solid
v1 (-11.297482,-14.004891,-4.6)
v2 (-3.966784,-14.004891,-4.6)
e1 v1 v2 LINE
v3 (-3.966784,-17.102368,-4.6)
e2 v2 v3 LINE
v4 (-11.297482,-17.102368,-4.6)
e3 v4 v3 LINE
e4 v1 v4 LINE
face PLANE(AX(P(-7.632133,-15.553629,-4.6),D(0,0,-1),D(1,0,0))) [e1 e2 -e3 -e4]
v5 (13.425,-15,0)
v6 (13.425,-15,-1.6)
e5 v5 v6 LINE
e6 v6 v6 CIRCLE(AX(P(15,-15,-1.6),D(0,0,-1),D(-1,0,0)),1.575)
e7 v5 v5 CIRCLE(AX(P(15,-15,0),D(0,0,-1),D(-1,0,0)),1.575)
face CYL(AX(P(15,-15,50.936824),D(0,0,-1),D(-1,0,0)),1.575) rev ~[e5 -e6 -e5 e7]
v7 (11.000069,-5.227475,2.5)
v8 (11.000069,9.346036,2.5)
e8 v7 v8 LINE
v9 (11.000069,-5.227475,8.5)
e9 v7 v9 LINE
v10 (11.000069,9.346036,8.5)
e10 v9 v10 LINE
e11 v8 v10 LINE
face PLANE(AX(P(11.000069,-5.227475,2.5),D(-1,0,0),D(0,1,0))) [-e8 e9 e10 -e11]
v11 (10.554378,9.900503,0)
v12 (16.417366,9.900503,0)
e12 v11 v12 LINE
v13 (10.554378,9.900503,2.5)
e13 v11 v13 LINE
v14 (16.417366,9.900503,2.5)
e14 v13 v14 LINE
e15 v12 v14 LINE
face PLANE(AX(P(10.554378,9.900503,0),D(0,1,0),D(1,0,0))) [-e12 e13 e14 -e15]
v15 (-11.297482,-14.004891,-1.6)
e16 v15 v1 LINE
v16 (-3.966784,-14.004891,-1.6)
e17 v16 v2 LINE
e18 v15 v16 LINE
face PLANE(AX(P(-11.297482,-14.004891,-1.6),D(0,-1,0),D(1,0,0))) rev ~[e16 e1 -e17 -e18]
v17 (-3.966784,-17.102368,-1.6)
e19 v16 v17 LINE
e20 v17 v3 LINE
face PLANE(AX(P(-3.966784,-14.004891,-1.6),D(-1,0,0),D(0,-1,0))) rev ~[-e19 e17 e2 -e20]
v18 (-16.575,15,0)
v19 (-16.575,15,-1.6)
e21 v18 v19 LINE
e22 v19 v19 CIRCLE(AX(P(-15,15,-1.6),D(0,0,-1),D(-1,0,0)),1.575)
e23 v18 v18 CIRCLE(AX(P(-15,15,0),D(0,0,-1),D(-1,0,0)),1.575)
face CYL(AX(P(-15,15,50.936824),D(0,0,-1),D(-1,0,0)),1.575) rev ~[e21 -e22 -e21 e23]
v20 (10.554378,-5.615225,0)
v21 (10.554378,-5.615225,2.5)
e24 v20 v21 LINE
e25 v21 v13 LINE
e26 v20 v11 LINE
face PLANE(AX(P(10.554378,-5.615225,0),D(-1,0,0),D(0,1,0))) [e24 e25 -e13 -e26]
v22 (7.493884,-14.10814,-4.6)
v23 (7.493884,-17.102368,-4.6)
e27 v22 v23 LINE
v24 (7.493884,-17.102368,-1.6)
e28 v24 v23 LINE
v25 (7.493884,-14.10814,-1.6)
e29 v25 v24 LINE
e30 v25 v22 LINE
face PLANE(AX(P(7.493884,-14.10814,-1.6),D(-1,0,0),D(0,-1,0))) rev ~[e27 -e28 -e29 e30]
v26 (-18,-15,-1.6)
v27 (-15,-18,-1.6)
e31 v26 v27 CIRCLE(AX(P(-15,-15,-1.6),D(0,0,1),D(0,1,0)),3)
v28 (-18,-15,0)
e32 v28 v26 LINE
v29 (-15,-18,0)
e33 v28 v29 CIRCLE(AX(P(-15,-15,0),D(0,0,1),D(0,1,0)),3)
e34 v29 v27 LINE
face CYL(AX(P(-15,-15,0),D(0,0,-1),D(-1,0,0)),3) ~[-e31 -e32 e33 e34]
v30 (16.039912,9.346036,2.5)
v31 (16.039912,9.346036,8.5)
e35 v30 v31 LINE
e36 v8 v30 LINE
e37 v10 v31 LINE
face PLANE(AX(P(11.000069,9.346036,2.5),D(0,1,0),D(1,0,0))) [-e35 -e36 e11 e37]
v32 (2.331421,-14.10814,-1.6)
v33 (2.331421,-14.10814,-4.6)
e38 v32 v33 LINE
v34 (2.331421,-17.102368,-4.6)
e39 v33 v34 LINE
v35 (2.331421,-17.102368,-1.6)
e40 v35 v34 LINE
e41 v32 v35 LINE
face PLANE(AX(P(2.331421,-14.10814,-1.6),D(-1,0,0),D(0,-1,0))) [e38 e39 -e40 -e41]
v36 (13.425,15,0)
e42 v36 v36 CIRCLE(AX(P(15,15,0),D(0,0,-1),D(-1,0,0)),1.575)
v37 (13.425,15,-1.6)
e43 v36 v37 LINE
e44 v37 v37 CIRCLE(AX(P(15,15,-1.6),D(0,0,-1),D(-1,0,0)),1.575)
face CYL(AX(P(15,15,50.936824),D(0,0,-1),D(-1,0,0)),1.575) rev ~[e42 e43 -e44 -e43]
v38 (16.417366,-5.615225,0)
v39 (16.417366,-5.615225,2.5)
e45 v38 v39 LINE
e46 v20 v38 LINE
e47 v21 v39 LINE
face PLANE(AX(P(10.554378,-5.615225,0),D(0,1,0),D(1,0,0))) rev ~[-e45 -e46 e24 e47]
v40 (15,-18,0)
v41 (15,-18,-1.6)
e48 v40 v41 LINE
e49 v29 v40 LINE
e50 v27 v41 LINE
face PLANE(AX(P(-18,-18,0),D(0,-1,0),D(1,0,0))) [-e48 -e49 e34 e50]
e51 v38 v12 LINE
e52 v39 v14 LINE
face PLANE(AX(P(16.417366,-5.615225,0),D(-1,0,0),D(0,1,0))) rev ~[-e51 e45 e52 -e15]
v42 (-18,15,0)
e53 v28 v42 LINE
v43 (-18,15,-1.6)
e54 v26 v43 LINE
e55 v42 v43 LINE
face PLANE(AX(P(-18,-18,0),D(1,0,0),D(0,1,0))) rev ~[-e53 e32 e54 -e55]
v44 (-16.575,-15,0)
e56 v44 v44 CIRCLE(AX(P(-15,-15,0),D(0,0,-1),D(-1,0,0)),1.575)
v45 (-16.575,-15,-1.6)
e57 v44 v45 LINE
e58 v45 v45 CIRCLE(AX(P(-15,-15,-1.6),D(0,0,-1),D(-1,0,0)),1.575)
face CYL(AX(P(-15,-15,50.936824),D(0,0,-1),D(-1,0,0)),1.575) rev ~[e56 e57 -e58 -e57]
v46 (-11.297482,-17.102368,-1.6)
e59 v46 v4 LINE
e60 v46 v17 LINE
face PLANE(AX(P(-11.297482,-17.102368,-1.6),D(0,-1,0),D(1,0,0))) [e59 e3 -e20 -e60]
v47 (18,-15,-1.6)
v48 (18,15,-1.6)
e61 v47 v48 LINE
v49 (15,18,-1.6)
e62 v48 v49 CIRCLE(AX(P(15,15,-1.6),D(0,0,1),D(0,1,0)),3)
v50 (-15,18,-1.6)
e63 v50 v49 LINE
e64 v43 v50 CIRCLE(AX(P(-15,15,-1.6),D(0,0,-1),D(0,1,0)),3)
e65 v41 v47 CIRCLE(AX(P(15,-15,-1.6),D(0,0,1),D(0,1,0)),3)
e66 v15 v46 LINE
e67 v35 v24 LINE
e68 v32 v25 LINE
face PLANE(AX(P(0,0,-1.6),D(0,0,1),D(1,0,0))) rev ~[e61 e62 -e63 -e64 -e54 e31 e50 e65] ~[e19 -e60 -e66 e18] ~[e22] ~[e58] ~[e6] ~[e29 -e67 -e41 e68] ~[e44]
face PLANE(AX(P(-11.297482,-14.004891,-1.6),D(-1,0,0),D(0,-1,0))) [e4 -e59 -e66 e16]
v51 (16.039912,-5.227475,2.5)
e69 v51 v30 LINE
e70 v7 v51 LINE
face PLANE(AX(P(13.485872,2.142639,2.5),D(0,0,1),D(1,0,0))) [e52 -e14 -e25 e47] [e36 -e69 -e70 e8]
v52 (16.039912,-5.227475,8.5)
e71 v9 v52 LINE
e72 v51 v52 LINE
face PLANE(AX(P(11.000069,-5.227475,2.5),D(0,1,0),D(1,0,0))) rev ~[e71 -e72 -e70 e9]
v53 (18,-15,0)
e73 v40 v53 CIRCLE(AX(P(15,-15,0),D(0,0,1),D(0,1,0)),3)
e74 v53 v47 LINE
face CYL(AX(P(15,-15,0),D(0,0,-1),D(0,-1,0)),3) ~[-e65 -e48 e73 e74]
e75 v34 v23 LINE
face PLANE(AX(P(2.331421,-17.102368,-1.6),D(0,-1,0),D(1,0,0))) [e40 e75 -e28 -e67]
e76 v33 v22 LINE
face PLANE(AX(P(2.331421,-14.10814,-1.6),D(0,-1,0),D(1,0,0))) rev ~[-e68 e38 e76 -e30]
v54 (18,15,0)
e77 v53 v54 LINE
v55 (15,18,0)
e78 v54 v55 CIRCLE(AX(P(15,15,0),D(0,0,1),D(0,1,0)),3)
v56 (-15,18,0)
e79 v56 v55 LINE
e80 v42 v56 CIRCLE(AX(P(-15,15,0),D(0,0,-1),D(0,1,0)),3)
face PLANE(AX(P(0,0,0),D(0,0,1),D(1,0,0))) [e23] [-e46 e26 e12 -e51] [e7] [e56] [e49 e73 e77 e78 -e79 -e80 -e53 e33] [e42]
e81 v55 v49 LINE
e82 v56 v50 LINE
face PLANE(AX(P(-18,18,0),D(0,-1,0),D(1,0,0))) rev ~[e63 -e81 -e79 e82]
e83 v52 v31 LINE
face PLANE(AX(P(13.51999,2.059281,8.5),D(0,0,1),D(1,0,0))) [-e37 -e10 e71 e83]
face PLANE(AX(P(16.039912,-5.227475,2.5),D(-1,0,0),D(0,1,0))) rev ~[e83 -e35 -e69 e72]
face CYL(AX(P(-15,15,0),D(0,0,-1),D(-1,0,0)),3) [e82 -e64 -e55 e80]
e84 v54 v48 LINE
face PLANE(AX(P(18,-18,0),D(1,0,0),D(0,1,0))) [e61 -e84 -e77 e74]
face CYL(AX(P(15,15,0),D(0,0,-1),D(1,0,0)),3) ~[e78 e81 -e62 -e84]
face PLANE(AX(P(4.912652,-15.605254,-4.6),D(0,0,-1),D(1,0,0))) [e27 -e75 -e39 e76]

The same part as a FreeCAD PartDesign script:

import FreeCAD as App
import Part
import Sketcher

V = App.Vector
Q = App.Units.Quantity


def edges_at(feature, points):
    """Names of the edges that pass closest to the given points."""
    edges = feature.Shape.Edges
    near = lambda p: min(range(len(edges)), key=lambda i: edges[i].distToShape(Part.Vertex(*p))[0])
    return sorted({f"Edge{near(p) + 1}" for p in points})

doc = App.newDocument("Part")
body = doc.addObject("PartDesign::Body", "Body")

# Sketch on XY plane
sketch1 = doc.addObject("Sketcher::SketchObject", "Sketch")
body.addObject(sketch1)
sketch1.AttachmentSupport = (doc.XY_Plane, [""])
sketch1.MapMode = "FlatFace"
sketch1.addGeometry([
    Part.LineSegment(V(-18, 18, 0), V(-18, -18, 0)),
    Part.LineSegment(V(-18, -18, 0), V(18, -18, 0)),
    Part.LineSegment(V(18, -18, 0), V(18, 18, 0)),
    Part.LineSegment(V(18, 18, 0), V(-18, 18, 0)),
], False)
sketch1.addConstraint([
    Sketcher.Constraint("Coincident", 0, 2, 1, 1),
    Sketcher.Constraint("Coincident", 1, 2, 2, 1),
    Sketcher.Constraint("Coincident", 2, 2, 3, 1),
    Sketcher.Constraint("Coincident", 3, 2, 0, 1),
    Sketcher.Constraint("Vertical", 0),
    Sketcher.Constraint("Horizontal", 1),
    Sketcher.Constraint("Vertical", 2),
    Sketcher.Constraint("Horizontal", 3),
    Sketcher.Constraint("Symmetric", 0, 2, 2, 2, -1, 1),
    Sketcher.Constraint("Equal", 3, 0),
    Sketcher.Constraint("DistanceX", 1, 1, 1, 2, Q("36 mm")),
])
pad1 = doc.addObject("PartDesign::Pad", "Pad")
body.addObject(pad1)
pad1.Profile = sketch1
pad1.Length = 1.6
pad1.Reversed = True
doc.recompute()

fillet = doc.addObject("PartDesign::Fillet", "Fillet")
body.addObject(fillet)
fillet.Base = (pad1, edges_at(pad1, [
    (18, -18, -0.8),
    (-18, -18, -0.8),
    (18, 18, -0.8),
    (-18, 18, -0.8),
]))
fillet.Radius = 3

# Sketch on XY plane
sketch2 = doc.addObject("Sketcher::SketchObject", "Sketch001")
body.addObject(sketch2)
sketch2.AttachmentSupport = (doc.XY_Plane, [""])
sketch2.MapMode = "FlatFace"
sketch2.addGeometry([
    Part.Circle(V(-15, 15, 0), V(0, 0, 1), 1.6),
    Part.Circle(V(15, 15, 0), V(0, 0, 1), 1.6),
    Part.Circle(V(15, -15, 0), V(0, 0, 1), 1.6),
    Part.Circle(V(-15, -15, 0), V(0, 0, 1), 1.6),
], False)
sketch2.addConstraint([
    Sketcher.Constraint("Equal", 0, 1),
    Sketcher.Constraint("Equal", 1, 2),
    Sketcher.Constraint("Equal", 2, 3),
    Sketcher.Constraint("Symmetric", 0, 3, 2, 3, -1, 1),
    Sketcher.Constraint("Symmetric", 1, 3, 3, 3, -1, 1),
    Sketcher.Constraint("Symmetric", 0, 3, 1, 3, -2),
    Sketcher.Constraint("Diameter", 0, Q("3.15 mm")),
    Sketcher.Constraint("DistanceX", 0, 3, -1, 1, Q("15 mm")),
    Sketcher.Constraint("DistanceY", -1, 1, 0, 3, Q("15 mm")),
])
doc.recompute()
hole = doc.addObject("PartDesign::Hole", "Hole")
body.addObject(hole)
hole.Profile = sketch2
hole.ThreadType = "None"
hole.Diameter = 3.15
hole.DepthType = "ThroughAll"

# Sketch on XY plane
sketch3 = doc.addObject("Sketcher::SketchObject", "Sketch002")
body.addObject(sketch3)
sketch3.AttachmentSupport = (doc.XY_Plane, [""])
sketch3.MapMode = "FlatFace"
sketch3.AttachmentOffset = App.Placement(V(0, 0, -1.6), App.Rotation())
sketch3.addGeometry([
    Part.LineSegment(V(2.3, -17.1, 0), V(2.3, -14.1, 0)),  # 0
    Part.LineSegment(V(2.3, -14.1, 0), V(7.5, -14.1, 0)),  # 1
    Part.LineSegment(V(7.5, -14.1, 0), V(7.5, -17.1, 0)),  # 2
    Part.LineSegment(V(7.5, -17.1, 0), V(2.3, -17.1, 0)),  # 3
    Part.LineSegment(V(-11.3, -17.1, 0), V(-11.3, -14, 0)),  # 4
    Part.LineSegment(V(-11.3, -14, 0), V(-4, -14, 0)),  # 5
    Part.LineSegment(V(-4, -14, 0), V(-4, -17.1, 0)),  # 6
    Part.LineSegment(V(-4, -17.1, 0), V(-11.3, -17.1, 0)),  # 7
], False)
sketch3.addConstraint([
    Sketcher.Constraint("Coincident", 0, 2, 1, 1),
    Sketcher.Constraint("Coincident", 1, 2, 2, 1),
    Sketcher.Constraint("Coincident", 2, 2, 3, 1),
    Sketcher.Constraint("Coincident", 3, 2, 0, 1),
    Sketcher.Constraint("Coincident", 4, 2, 5, 1),
    Sketcher.Constraint("Coincident", 5, 2, 6, 1),
    Sketcher.Constraint("Coincident", 6, 2, 7, 1),
    Sketcher.Constraint("Coincident", 7, 2, 4, 1),
    Sketcher.Constraint("Vertical", 0),
    Sketcher.Constraint("Horizontal", 1),
    Sketcher.Constraint("Vertical", 2),
    Sketcher.Constraint("Horizontal", 3),
    Sketcher.Constraint("Vertical", 4),
    Sketcher.Constraint("Horizontal", 5),
    Sketcher.Constraint("Vertical", 6),
    Sketcher.Constraint("Horizontal", 7),
    Sketcher.Constraint("Horizontal", 3, 2, 6, 2),
    Sketcher.Constraint("DistanceY", 0, 1, 0, 2, Q("2.994228 mm")),
    Sketcher.Constraint("DistanceX", 1, 1, 1, 2, Q("5.162463 mm")),
    Sketcher.Constraint("DistanceX", 5, 1, 5, 2, Q("7.330698 mm")),
    Sketcher.Constraint("DistanceY", 4, 1, 4, 2, Q("3.097477 mm")),
    Sketcher.Constraint("DistanceX", -1, 1, 0, 2, Q("2.331421 mm")),
    Sketcher.Constraint("DistanceY", 0, 2, -1, 1, Q("14.10814 mm")),
    Sketcher.Constraint("DistanceX", 4, 2, -1, 1, Q("11.297482 mm")),
])
pad2 = doc.addObject("PartDesign::Pad", "Pad001")
body.addObject(pad2)
pad2.Profile = sketch3
pad2.Length = 3
pad2.Reversed = True

# Sketch on XY plane
sketch4 = doc.addObject("Sketcher::SketchObject", "Sketch003")
body.addObject(sketch4)
sketch4.AttachmentSupport = (doc.XY_Plane, [""])
sketch4.MapMode = "FlatFace"
sketch4.addGeometry([
    Part.LineSegment(V(11, 10, 0), V(11, -6, 0)),
    Part.LineSegment(V(11, -6, 0), V(16, -6, 0)),
    Part.LineSegment(V(16, -6, 0), V(16, 10, 0)),
    Part.LineSegment(V(16, 10, 0), V(11, 10, 0)),
], False)
sketch4.addConstraint([
    Sketcher.Constraint("Coincident", 0, 2, 1, 1),
    Sketcher.Constraint("Coincident", 1, 2, 2, 1),
    Sketcher.Constraint("Coincident", 2, 2, 3, 1),
    Sketcher.Constraint("Coincident", 3, 2, 0, 1),
    Sketcher.Constraint("Vertical", 0),
    Sketcher.Constraint("Horizontal", 1),
    Sketcher.Constraint("Vertical", 2),
    Sketcher.Constraint("Horizontal", 3),
    Sketcher.Constraint("DistanceX", 1, 1, 1, 2, Q("5.862988 mm")),
    Sketcher.Constraint("DistanceY", 0, 2, 0, 1, Q("15.515727 mm")),
    Sketcher.Constraint("DistanceX", -1, 1, 0, 2, Q("10.554378 mm")),
    Sketcher.Constraint("DistanceY", 0, 2, -1, 1, Q("5.615225 mm")),
])
pad3 = doc.addObject("PartDesign::Pad", "Pad002")
body.addObject(pad3)
pad3.Profile = sketch4
pad3.Length = 2.5

# Sketch on XY plane
sketch5 = doc.addObject("Sketcher::SketchObject", "Sketch004")
body.addObject(sketch5)
sketch5.AttachmentSupport = (doc.XY_Plane, [""])
sketch5.MapMode = "FlatFace"
sketch5.AttachmentOffset = App.Placement(V(0, 0, 2.5), App.Rotation())
sketch5.addGeometry([
    Part.LineSegment(V(11, 9, 0), V(11, -5, 0)),
    Part.LineSegment(V(11, -5, 0), V(16, -5, 0)),
    Part.LineSegment(V(16, -5, 0), V(16, 9, 0)),
    Part.LineSegment(V(16, 9, 0), V(11, 9, 0)),
], False)
sketch5.addConstraint([
    Sketcher.Constraint("Coincident", 0, 2, 1, 1),
    Sketcher.Constraint("Coincident", 1, 2, 2, 1),
    Sketcher.Constraint("Coincident", 2, 2, 3, 1),
    Sketcher.Constraint("Coincident", 3, 2, 0, 1),
    Sketcher.Constraint("Vertical", 0),
    Sketcher.Constraint("Horizontal", 1),
    Sketcher.Constraint("Vertical", 2),
    Sketcher.Constraint("Horizontal", 3),
    Sketcher.Constraint("DistanceY", 0, 2, 0, 1, Q("14.573511 mm")),
    Sketcher.Constraint("DistanceX", 1, 1, 1, 2, Q("5.039843 mm")),
    Sketcher.Constraint("DistanceX", -1, 1, 0, 2, Q("11.000069 mm")),
    Sketcher.Constraint("DistanceY", 0, 2, -1, 1, Q("5.227475 mm")),
])
pad4 = doc.addObject("PartDesign::Pad", "Pad003")
body.addObject(pad4)
pad4.Profile = sketch5
pad4.Length = 6

doc.recompute()
